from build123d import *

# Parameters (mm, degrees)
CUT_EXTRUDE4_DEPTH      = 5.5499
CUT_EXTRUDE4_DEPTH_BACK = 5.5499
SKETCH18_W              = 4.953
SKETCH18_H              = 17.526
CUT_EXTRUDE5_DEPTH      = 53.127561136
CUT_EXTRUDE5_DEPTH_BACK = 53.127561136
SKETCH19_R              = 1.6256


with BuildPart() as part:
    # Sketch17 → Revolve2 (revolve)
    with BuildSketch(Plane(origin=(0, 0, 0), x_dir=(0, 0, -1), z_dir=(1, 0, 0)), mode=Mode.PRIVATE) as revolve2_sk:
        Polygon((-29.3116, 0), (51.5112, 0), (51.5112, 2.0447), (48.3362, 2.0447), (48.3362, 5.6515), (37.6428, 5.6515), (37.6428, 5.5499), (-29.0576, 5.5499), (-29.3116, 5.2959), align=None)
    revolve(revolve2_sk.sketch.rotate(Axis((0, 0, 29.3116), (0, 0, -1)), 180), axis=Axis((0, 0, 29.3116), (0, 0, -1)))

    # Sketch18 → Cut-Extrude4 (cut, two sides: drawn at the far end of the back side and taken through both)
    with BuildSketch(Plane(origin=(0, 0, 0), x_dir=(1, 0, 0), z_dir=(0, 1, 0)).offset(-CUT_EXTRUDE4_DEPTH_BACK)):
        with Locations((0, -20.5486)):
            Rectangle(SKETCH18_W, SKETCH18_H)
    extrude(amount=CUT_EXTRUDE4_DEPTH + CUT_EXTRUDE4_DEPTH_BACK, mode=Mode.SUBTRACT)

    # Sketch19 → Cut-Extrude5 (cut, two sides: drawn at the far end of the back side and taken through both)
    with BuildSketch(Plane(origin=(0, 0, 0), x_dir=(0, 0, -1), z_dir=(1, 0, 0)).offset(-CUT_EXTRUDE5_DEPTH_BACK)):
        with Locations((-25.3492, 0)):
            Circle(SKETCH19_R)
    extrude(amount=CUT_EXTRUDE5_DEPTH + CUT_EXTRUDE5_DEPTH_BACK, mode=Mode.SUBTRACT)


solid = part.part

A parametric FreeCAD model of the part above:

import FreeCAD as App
import Part
import Sketcher

V = App.Vector
Q = App.Units.Quantity

doc = App.newDocument("Part")
body = doc.addObject("PartDesign::Body", "Body")

# Sketch on YZ plane
sketch1 = body.newObject("Sketcher::SketchObject", "Sketch")
sketch1.AttachmentSupport = (doc.getObject("YZ_Plane"), [""])
sketch1.MapMode = "FlatFace"
sketch1.addGeometry([
    Part.LineSegment(V(0, 29.3116, 0), V(0, -51.5112, 0)),  # 0
    Part.LineSegment(V(0, -51.5112, 0), V(2.0447, -51.5112, 0)),  # 1
    Part.LineSegment(V(2.0447, -51.5112, 0), V(2.0447, -48.3362, 0)),  # 2
    Part.LineSegment(V(2.0447, -48.3362, 0), V(5.6515, -48.3362, 0)),  # 3
    Part.LineSegment(V(5.6515, -48.3362, 0), V(5.6515, -37.6428, 0)),  # 4
    Part.LineSegment(V(5.6515, -37.6428, 0), V(5.5499, -37.6428, 0)),  # 5
    Part.LineSegment(V(5.5499, -37.6428, 0), V(5.5499, 29.0576, 0)),  # 6
    Part.LineSegment(V(5.5499, 29.0576, 0), V(5.2959, 29.3116, 0)),  # 7
    Part.LineSegment(V(5.2959, 29.3116, 0), V(0, 29.3116, 0)),  # 8
], False)
sketch1.addConstraint([
    Sketcher.Constraint("Coincident", 0, 2, 1, 1),
    Sketcher.Constraint("Coincident", 1, 2, 2, 1),
    Sketcher.Constraint("Coincident", 2, 2, 3, 1),
    Sketcher.Constraint("Coincident", 3, 2, 4, 1),
    Sketcher.Constraint("Coincident", 4, 2, 5, 1),
    Sketcher.Constraint("Coincident", 5, 2, 6, 1),
    Sketcher.Constraint("Coincident", 6, 2, 7, 1),
    Sketcher.Constraint("Coincident", 7, 2, 8, 1),
    Sketcher.Constraint("Coincident", 8, 2, 0, 1),
    Sketcher.Constraint("Vertical", 0),
    Sketcher.Constraint("Horizontal", 1),
    Sketcher.Constraint("Vertical", 2),
    Sketcher.Constraint("Horizontal", 3),
    Sketcher.Constraint("Vertical", 4),
    Sketcher.Constraint("Horizontal", 5),
    Sketcher.Constraint("Vertical", 6),
    Sketcher.Constraint("Horizontal", 8),
    Sketcher.Constraint("PointOnObject", 0, 2, -2),
    Sketcher.Constraint("Angle", 7, Q("135 deg")),
    Sketcher.Constraint("DistanceX", 3, 1, 3, 2, Q("0.142 in")),
    Sketcher.Constraint("DistanceX", 5, 2, 5, 1, Q("0.004 in")),
    Sketcher.Constraint("DistanceY", 0, 2, 0, 1, Q("3.182 in")),
    Sketcher.Constraint("DistanceY", 2, 1, 2, 2, Q("0.125 in")),
    Sketcher.Constraint("DistanceY", 4, 1, 4, 2, Q("0.421 in")),
    Sketcher.Constraint("DistanceY", 6, 1, 6, 2, Q("2.626 in")),
    Sketcher.Constraint("DistanceX", 1, 1, 1, 2, Q("0.0805 in")),
    Sketcher.Constraint("DistanceY", 0, 2, -1, 1, Q("2.028 in")),
])
revolution = body.newObject("PartDesign::Revolution", "Revolution")
revolution.Profile = sketch1
revolution.ReferenceAxis = (sketch1, ["V_Axis"])
revolution.Angle = 360

# Sketch on XZ plane
sketch2 = body.newObject("Sketcher::SketchObject", "Sketch001")
sketch2.AttachmentSupport = (doc.getObject("XZ_Plane"), [""])
sketch2.MapMode = "FlatFace"
sketch2.addGeometry([
    Part.LineSegment(V(-2.4765, 11.7856, 0), V(-2.4765, 29.3116, 0)),
    Part.LineSegment(V(-2.4765, 29.3116, 0), V(2.4765, 29.3116, 0)),
    Part.LineSegment(V(2.4765, 29.3116, 0), V(2.4765, 11.7856, 0)),
    Part.LineSegment(V(2.4765, 11.7856, 0), V(-2.4765, 11.7856, 0)),
], False)
sketch2.addConstraint([
    Sketcher.Constraint("Coincident", 0, 2, 1, 1),
    Sketcher.Constraint("Coincident", 1, 2, 2, 1),
    Sketcher.Constraint("Coincident", 2, 2, 3, 1),
    Sketcher.Constraint("Coincident", 3, 2, 0, 1),
    Sketcher.Constraint("Vertical", 0),
    Sketcher.Constraint("Horizontal", 1),
    Sketcher.Constraint("Vertical", 2),
    Sketcher.Constraint("Horizontal", 3),
    Sketcher.Constraint("DistanceY", 0, 1, 0, 2, Q("0.69 in")),
    Sketcher.Constraint("DistanceX", 1, 1, 1, 2, Q("0.195 in")),
    Sketcher.Constraint("DistanceY", -1, 1, 0, 2, Q("1.154 in")),
    Sketcher.Constraint("DistanceX", 0, 2, -1, 1, Q("0.0975 in")),
])
pocket1 = body.newObject("PartDesign::Pocket", "Pocket")
pocket1.Profile = sketch2
pocket1.Type = "ThroughAll"
pocket1.Midplane = True

# Sketch on YZ plane
sketch3 = body.newObject("Sketcher::SketchObject", "Sketch002")
sketch3.AttachmentSupport = (doc.getObject("YZ_Plane"), [""])
sketch3.MapMode = "FlatFace"
sketch3.addGeometry(Part.Circle(V(0, 25.3492, 0), V(0, 0, 1), 1.6256), False)
sketch3.addConstraint([
    Sketcher.Constraint("PointOnObject", 0, 3, -2),
    Sketcher.Constraint("Diameter", 0, Q("0.128 in")),
    Sketcher.Constraint("DistanceY", -1, 1, 0, 3, Q("0.998 in")),
])
pocket2 = body.newObject("PartDesign::Pocket", "Pocket001")
pocket2.Profile = sketch3
pocket2.Type = "ThroughAll"
pocket2.Midplane = True

doc.recompute()
